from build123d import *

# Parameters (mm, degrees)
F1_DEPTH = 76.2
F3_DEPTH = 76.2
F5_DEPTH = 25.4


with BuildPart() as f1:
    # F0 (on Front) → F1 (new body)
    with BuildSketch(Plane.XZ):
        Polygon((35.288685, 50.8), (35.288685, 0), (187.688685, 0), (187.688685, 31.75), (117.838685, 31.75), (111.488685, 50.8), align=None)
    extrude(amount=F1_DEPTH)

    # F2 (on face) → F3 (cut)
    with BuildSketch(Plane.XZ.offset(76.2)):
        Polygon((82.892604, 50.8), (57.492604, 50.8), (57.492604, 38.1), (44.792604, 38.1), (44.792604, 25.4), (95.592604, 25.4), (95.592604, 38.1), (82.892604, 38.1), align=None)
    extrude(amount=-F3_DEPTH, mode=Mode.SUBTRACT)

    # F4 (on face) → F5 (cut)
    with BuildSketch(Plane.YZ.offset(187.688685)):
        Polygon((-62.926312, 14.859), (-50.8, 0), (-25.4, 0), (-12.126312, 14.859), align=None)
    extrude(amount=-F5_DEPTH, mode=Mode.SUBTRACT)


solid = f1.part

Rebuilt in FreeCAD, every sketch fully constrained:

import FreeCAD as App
import Part
import Sketcher
from FreeCAD import Vector
Q = App.Units.Quantity

doc = App.newDocument("Part")
body = doc.addObject("PartDesign::Body", "Body")

# Sketch on XZ plane
sketch1 = body.newObject("Sketcher::SketchObject", "Sketch")
sketch1.AttachmentSupport = (doc.getObject("XZ_Plane"), [""])
sketch1.MapMode = "FlatFace"
sketch1.addGeometry([
    Part.LineSegment(Vector(35, 51, 0), Vector(35, 0, 0)),  # 0
    Part.LineSegment(Vector(35, 0, 0), Vector(188, 0, 0)),  # 1
    Part.LineSegment(Vector(188, 0, 0), Vector(188, 32, 0)),  # 2
    Part.LineSegment(Vector(188, 32, 0), Vector(118, 32, 0)),  # 3
    Part.LineSegment(Vector(118, 32, 0), Vector(111, 51, 0)),  # 4
    Part.LineSegment(Vector(111, 51, 0), Vector(35, 51, 0)),  # 5
], False)
sketch1.addConstraint([
    Sketcher.Constraint("Coincident", 0, 2, 1, 1),
    Sketcher.Constraint("Coincident", 1, 2, 2, 1),
    Sketcher.Constraint("Coincident", 2, 2, 3, 1),
    Sketcher.Constraint("Coincident", 3, 2, 4, 1),
    Sketcher.Constraint("Coincident", 4, 2, 5, 1),
    Sketcher.Constraint("Coincident", 5, 2, 0, 1),
    Sketcher.Constraint("Vertical", 0),
    Sketcher.Constraint("Horizontal", 1),
    Sketcher.Constraint("Vertical", 2),
    Sketcher.Constraint("Horizontal", 3),
    Sketcher.Constraint("Horizontal", 5),
    Sketcher.Constraint("PointOnObject", 0, 2, -1),
    Sketcher.Constraint("DistanceX", 1, 1, 1, 2, Q("6 in")),
    Sketcher.Constraint("DistanceX", 5, 2, 5, 1, Q("3 in")),
    Sketcher.Constraint("DistanceY", 0, 2, 0, 1, Q("2 in")),
    Sketcher.Constraint("DistanceX", 3, 2, 3, 1, Q("2.75 in")),
    Sketcher.Constraint("DistanceY", 2, 1, 2, 2, Q("1.25 in")),
    Sketcher.Constraint("DistanceX", -1, 1, 0, 2, Q("35.288685 mm")),
])
pad1 = body.newObject("PartDesign::Pad", "Pad")
pad1.Profile = sketch1
pad1.Length = Q("3 in")

# Sketch on XZ plane
sketch2 = body.newObject("Sketcher::SketchObject", "Sketch001")
sketch2.AttachmentSupport = (doc.getObject("XZ_Plane"), [""])
sketch2.MapMode = "FlatFace"
sketch2.AttachmentOffset = App.Placement(Vector(0, 0, 3 * 25.4), App.Rotation())
sketch2.addGeometry([
    Part.LineSegment(Vector(83, 51, 0), Vector(57, 51, 0)),  # 0
    Part.LineSegment(Vector(57, 51, 0), Vector(57, 38, 0)),  # 1
    Part.LineSegment(Vector(57, 38, 0), Vector(45, 38, 0)),  # 2
    Part.LineSegment(Vector(45, 38, 0), Vector(45, 25, 0)),  # 3
    Part.LineSegment(Vector(45, 25, 0), Vector(96, 25, 0)),  # 4
    Part.LineSegment(Vector(96, 25, 0), Vector(96, 38, 0)),  # 5
    Part.LineSegment(Vector(96, 38, 0), Vector(83, 38, 0)),  # 6
    Part.LineSegment(Vector(83, 38, 0), Vector(83, 51, 0)),  # 7
], False)
sketch2.addConstraint([
    Sketcher.Constraint("Coincident", 0, 2, 1, 1),
    Sketcher.Constraint("Coincident", 1, 2, 2, 1),
    Sketcher.Constraint("Coincident", 2, 2, 3, 1),
    Sketcher.Constraint("Coincident", 3, 2, 4, 1),
    Sketcher.Constraint("Coincident", 4, 2, 5, 1),
    Sketcher.Constraint("Coincident", 5, 2, 6, 1),
    Sketcher.Constraint("Coincident", 6, 2, 7, 1),
    Sketcher.Constraint("Coincident", 7, 2, 0, 1),
    Sketcher.Constraint("Horizontal", 0),
    Sketcher.Constraint("Vertical", 1),
    Sketcher.Constraint("Horizontal", 2),
    Sketcher.Constraint("Vertical", 3),
    Sketcher.Constraint("Horizontal", 4),
    Sketcher.Constraint("Vertical", 5),
    Sketcher.Constraint("Horizontal", 6),
    Sketcher.Constraint("Vertical", 7),
    Sketcher.Constraint("Horizontal", 2, 2, 5, 2),
    Sketcher.Constraint("Equal", 2, 6),
    Sketcher.Constraint("Equal", 6, 1),
    Sketcher.Constraint("Equal", 1, 3),
    Sketcher.Constraint("DistanceX", 0, 2, 0, 1, Q("1 in")),
    Sketcher.Constraint("DistanceX", 4, 1, 4, 2, Q("2 in")),
    Sketcher.Constraint("DistanceY", -1, 1, 0, 2, Q("2 in")),
    Sketcher.Constraint("DistanceX", -1, 1, 0, 2, Q("57.492604 mm")),
])
pocket1 = body.newObject("PartDesign::Pocket", "Pocket")
pocket1.Profile = sketch2
pocket1.Length = Q("3 in")

# Sketch on YZ plane
sketch3 = body.newObject("Sketcher::SketchObject", "Sketch002")
sketch3.AttachmentSupport = (doc.getObject("YZ_Plane"), [""])
sketch3.MapMode = "FlatFace"
sketch3.AttachmentOffset = App.Placement(Vector(0, 0, 187.688685), App.Rotation())
sketch3.addGeometry([
    Part.LineSegment(Vector(-63, 15, 0), Vector(-51, 0, 0)),
    Part.LineSegment(Vector(-51, 0, 0), Vector(-25, 0, 0)),
    Part.LineSegment(Vector(-25, 0, 0), Vector(-12, 15, 0)),
    Part.LineSegment(Vector(-12, 15, 0), Vector(-63, 15, 0)),
], False)
sketch3.addConstraint([
    Sketcher.Constraint("Coincident", 0, 2, 1, 1),
    Sketcher.Constraint("Coincident", 1, 2, 2, 1),
    Sketcher.Constraint("Coincident", 2, 2, 3, 1),
    Sketcher.Constraint("Coincident", 3, 2, 0, 1),
    Sketcher.Constraint("Horizontal", 1),
    Sketcher.Constraint("Horizontal", 3),
    Sketcher.Constraint("PointOnObject", 0, 2, -1),
    Sketcher.Constraint("DistanceX", 1, 1, 1, 2, Q("1 in")),
    Sketcher.Constraint("DistanceX", 3, 2, 3, 1, Q("2 in")),
    Sketcher.Constraint("DistanceX", 0, 2, -1, 1, Q("2 in")),
    Sketcher.Constraint("DistanceY", -1, 1, 2, 2, Q("0.585 in")),
    Sketcher.Constraint("Distance", 0, Q("19.179086 mm")),
])
pocket2 = body.newObject("PartDesign::Pocket", "Pocket001")
pocket2.Profile = sketch3
pocket2.Length = Q("1 in")

doc.recompute()
